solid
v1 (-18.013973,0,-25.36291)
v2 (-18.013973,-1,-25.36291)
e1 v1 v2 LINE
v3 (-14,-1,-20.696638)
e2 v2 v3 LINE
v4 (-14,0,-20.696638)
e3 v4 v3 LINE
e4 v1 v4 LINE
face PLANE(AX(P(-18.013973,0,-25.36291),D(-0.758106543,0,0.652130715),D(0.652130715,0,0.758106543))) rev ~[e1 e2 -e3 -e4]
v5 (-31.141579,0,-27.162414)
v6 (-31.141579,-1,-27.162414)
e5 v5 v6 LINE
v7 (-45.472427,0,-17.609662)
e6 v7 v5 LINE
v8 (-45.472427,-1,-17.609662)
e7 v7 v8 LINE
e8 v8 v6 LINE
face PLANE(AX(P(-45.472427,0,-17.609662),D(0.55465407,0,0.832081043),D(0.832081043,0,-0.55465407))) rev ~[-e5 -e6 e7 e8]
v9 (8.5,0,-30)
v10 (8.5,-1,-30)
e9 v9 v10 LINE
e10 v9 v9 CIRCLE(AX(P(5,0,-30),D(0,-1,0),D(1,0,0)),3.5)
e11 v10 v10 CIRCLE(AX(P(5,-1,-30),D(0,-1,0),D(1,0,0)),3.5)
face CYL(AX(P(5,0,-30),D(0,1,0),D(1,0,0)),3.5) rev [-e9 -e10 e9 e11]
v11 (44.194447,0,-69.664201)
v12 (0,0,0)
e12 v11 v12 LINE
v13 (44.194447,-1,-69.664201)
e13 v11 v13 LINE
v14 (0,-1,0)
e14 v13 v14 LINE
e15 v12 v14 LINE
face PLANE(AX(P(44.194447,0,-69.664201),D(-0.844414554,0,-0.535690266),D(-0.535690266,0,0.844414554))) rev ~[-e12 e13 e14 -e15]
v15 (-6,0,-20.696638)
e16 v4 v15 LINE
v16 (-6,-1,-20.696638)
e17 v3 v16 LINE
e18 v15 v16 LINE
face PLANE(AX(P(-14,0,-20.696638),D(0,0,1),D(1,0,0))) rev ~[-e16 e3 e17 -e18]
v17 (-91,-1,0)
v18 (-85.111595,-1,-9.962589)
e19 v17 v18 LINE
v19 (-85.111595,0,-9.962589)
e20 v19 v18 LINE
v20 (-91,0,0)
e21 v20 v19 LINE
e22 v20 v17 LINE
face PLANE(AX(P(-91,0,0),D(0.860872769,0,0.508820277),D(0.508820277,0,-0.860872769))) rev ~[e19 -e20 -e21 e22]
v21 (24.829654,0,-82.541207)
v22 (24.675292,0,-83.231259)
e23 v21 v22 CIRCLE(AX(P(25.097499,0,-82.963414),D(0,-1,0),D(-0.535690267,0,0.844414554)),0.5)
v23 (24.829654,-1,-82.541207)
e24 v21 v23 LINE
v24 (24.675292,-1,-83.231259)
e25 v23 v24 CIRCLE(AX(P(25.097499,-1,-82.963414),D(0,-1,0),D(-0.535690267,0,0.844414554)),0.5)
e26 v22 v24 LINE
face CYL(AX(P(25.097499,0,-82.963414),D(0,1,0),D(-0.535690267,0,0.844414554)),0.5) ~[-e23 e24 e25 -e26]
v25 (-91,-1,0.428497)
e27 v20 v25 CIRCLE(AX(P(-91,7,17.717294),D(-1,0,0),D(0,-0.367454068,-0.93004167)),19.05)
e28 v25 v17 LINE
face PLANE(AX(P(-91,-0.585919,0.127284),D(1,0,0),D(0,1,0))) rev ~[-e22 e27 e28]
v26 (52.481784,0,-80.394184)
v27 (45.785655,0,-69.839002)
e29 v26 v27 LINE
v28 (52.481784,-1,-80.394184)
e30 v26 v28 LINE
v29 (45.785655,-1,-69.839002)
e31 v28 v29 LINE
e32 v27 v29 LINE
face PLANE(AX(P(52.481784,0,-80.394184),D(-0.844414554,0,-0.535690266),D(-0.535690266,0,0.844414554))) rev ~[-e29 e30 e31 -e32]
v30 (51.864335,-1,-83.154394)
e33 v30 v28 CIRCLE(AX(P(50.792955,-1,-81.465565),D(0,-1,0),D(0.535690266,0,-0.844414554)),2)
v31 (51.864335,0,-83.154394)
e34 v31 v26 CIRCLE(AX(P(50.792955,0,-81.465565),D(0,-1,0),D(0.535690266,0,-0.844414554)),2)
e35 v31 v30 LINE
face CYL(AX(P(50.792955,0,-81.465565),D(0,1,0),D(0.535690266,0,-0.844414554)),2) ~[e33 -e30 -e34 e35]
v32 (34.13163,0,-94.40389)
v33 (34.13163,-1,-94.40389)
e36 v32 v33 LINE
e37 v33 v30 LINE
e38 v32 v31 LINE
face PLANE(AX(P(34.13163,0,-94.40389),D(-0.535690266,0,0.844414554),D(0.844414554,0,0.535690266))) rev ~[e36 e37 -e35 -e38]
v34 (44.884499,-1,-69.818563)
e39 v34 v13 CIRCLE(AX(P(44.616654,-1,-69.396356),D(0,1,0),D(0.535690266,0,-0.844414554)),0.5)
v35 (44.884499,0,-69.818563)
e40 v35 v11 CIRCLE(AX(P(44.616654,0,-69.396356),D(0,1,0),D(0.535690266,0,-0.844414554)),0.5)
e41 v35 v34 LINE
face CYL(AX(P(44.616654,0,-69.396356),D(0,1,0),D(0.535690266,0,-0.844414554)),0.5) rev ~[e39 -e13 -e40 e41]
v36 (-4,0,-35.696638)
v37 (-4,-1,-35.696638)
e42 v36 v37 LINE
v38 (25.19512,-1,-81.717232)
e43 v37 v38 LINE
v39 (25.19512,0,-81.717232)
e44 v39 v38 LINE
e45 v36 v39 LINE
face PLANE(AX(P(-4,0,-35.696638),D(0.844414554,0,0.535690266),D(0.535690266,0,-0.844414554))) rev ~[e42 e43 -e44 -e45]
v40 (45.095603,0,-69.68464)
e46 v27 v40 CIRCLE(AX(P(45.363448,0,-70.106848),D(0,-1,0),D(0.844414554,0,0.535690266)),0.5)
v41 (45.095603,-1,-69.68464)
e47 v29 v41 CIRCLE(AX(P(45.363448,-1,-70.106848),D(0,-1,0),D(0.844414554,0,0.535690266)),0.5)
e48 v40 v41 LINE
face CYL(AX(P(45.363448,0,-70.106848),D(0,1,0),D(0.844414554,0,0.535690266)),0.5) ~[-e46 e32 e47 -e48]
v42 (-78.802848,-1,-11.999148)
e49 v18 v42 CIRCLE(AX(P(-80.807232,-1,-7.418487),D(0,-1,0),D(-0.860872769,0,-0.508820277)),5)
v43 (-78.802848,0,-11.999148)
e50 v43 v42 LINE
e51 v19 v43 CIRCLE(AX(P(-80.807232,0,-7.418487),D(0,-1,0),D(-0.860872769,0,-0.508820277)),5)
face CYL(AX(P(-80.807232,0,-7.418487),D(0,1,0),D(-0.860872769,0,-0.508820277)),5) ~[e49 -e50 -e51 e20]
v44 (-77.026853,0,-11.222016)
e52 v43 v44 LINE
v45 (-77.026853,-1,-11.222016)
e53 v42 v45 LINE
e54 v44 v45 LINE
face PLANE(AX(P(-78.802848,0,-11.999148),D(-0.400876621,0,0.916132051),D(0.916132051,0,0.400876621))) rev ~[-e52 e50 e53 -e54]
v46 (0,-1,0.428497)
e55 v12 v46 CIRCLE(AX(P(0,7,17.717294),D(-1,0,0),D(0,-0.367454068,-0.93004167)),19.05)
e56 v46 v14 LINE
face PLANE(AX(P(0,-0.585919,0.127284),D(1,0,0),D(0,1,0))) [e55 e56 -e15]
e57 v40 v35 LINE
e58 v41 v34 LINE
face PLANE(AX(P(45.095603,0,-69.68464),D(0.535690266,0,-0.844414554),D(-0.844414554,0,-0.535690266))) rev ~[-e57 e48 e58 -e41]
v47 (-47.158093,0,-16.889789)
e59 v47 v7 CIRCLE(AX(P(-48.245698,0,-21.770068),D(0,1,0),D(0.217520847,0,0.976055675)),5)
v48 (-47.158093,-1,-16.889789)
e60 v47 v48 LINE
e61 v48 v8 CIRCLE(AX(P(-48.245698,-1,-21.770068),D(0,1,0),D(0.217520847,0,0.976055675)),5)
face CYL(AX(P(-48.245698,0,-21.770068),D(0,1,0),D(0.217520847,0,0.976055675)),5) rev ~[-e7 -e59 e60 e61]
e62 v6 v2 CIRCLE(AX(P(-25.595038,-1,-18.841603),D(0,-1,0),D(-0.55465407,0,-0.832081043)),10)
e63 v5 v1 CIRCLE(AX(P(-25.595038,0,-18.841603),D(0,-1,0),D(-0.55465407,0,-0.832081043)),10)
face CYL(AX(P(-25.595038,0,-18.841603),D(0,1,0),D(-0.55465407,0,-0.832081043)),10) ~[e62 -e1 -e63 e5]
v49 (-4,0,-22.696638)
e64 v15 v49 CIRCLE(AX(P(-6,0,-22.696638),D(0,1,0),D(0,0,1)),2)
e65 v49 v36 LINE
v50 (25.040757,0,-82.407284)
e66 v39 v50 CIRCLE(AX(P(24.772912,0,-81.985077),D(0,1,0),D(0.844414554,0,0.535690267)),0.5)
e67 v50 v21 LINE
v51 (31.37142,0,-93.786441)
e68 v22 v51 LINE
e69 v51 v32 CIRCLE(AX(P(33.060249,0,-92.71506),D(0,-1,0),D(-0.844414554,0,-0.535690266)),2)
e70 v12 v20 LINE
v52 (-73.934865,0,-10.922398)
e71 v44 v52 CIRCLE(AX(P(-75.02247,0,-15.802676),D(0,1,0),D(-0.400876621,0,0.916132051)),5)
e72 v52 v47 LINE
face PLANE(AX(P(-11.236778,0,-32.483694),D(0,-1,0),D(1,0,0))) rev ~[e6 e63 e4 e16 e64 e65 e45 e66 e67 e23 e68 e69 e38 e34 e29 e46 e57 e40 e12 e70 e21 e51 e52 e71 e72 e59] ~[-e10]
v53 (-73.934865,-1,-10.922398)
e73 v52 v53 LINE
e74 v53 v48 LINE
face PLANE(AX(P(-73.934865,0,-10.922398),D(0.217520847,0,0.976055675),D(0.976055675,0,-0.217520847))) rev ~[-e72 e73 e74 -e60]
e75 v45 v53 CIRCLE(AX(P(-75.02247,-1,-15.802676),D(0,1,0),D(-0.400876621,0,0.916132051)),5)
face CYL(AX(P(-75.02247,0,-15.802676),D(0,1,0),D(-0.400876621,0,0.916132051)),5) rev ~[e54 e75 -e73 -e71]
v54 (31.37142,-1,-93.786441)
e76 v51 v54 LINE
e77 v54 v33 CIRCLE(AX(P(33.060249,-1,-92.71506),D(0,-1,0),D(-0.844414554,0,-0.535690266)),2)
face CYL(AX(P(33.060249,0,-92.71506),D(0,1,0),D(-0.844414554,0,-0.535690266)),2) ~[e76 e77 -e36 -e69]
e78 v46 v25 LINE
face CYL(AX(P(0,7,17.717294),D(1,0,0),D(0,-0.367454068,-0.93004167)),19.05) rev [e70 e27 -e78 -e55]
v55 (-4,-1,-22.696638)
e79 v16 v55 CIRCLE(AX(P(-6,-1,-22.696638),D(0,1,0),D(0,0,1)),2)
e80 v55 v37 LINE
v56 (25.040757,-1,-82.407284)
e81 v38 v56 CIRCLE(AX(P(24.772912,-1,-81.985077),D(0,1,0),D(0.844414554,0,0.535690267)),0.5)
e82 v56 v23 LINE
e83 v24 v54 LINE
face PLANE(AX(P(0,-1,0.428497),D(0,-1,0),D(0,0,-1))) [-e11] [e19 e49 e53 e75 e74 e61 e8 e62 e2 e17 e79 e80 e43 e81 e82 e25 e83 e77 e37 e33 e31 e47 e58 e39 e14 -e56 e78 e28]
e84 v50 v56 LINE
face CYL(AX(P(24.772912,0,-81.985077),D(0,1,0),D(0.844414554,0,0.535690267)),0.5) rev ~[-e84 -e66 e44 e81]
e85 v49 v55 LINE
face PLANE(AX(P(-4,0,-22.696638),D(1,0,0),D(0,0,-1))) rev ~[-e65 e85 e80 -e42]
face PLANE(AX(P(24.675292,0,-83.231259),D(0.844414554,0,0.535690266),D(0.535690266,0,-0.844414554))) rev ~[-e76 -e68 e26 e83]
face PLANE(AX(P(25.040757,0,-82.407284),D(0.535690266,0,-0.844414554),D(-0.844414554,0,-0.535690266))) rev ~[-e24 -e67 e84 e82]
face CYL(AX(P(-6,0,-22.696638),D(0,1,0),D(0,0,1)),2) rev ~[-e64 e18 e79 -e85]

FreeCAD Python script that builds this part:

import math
import FreeCAD as App
import Part
import Sketcher

doc = App.newDocument("Part")
body = doc.addObject("PartDesign::Body", "Body")

# Sketch on XZ plane
sketch1 = doc.addObject("Sketcher::SketchObject", "Sketch")
body.addObject(sketch1)
sketch1.AttachmentSupport = (doc.XZ_Plane, [""])
sketch1.MapMode = "FlatFace"
sketch1.addGeometry([
    Part.LineSegment(App.Vector(44.19, -69.66, 0), App.Vector(0, 0, 0)),  # 0
    Part.LineSegment(App.Vector(0, 0, 0), App.Vector(-91, 0, 0)),  # 1
    Part.LineSegment(App.Vector(-91, 0, 0), App.Vector(-85.11, -9.96, 0)),  # 2
    Part.ArcOfCircle(Part.Circle(App.Vector(-80.81, -7.42, 0), App.Vector(0, 0, 1), 5), math.radians(-149), math.radians(-66)),  # 3
    Part.LineSegment(App.Vector(-78.8, -12, 0), App.Vector(-77.03, -11.22, 0)),  # 4
    Part.ArcOfCircle(Part.Circle(App.Vector(-75.02, -15.8, 0), App.Vector(0, 0, 1), 5), math.radians(77), math.radians(114)),  # 5
    Part.LineSegment(App.Vector(-73.93, -10.92, 0), App.Vector(-47.16, -16.89, 0)),  # 6
    Part.ArcOfCircle(Part.Circle(App.Vector(-48.25, -21.77, 0), App.Vector(0, 0, 1), 5), math.radians(56), math.radians(77)),  # 7
    Part.LineSegment(App.Vector(-45.47, -17.61, 0), App.Vector(-31.14, -27.16, 0)),  # 8
    Part.ArcOfCircle(Part.Circle(App.Vector(-25.6, -18.84, 0), App.Vector(0, 0, 1), 10), math.radians(-124), math.radians(-41)),  # 9
    Part.LineSegment(App.Vector(-18.01, -25.36, 0), App.Vector(-14, -20.7, 0)),  # 10
    Part.LineSegment(App.Vector(-14, -20.7, 0), App.Vector(-6, -20.7, 0)),  # 11
    Part.ArcOfCircle(Part.Circle(App.Vector(-6, -22.7, 0), App.Vector(0, 0, 1), 2), math.radians(0), math.radians(90)),  # 12
    Part.LineSegment(App.Vector(-4, -22.7, 0), App.Vector(-4, -35.7, 0)),  # 13
    Part.LineSegment(App.Vector(-4, -35.7, 0), App.Vector(25.2, -81.72, 0)),  # 14
    Part.ArcOfCircle(Part.Circle(App.Vector(24.77, -81.99, 0), App.Vector(0, 0, 1), 0.5), math.radians(-58), math.radians(32)),  # 15
    Part.LineSegment(App.Vector(25.04, -82.41, 0), App.Vector(24.83, -82.54, 0)),  # 16
    Part.ArcOfCircle(Part.Circle(App.Vector(25.1, -82.96, 0), App.Vector(0, 0, 1), 0.5), math.radians(122), math.radians(212)),  # 17
    Part.LineSegment(App.Vector(24.68, -83.23, 0), App.Vector(31.37, -93.79, 0)),  # 18
    Part.ArcOfCircle(Part.Circle(App.Vector(33.06, -92.72, 0), App.Vector(0, 0, 1), 2), math.radians(-148), math.radians(-58)),  # 19
    Part.LineSegment(App.Vector(34.13, -94.4, 0), App.Vector(51.86, -83.15, 0)),  # 20
    Part.ArcOfCircle(Part.Circle(App.Vector(50.79, -81.47, 0), App.Vector(0, 0, 1), 2), math.radians(-58), math.radians(32)),  # 21
    Part.LineSegment(App.Vector(52.48, -80.39, 0), App.Vector(45.79, -69.84, 0)),  # 22
    Part.ArcOfCircle(Part.Circle(App.Vector(45.36, -70.11, 0), App.Vector(0, 0, 1), 0.5), math.radians(32), math.radians(122)),  # 23
    Part.LineSegment(App.Vector(45.1, -69.68, 0), App.Vector(44.88, -69.82, 0)),  # 24
    Part.ArcOfCircle(Part.Circle(App.Vector(44.62, -69.4, 0), App.Vector(0, 0, 1), 0.5), math.radians(-148), math.radians(-58)),  # 25
    Part.Circle(App.Vector(5, -30, 0), App.Vector(0, 0, 1), 3.5),  # 26
], False)
sketch1.addConstraint([
    Sketcher.Constraint("Coincident", 0, 2, 1, 1),
    Sketcher.Constraint("Coincident", 1, 2, 2, 1),
    Sketcher.Constraint("Tangent", 2, 2, 3, 1),
    Sketcher.Constraint("Tangent", 3, 2, 4, 1),
    Sketcher.Constraint("Tangent", 4, 2, 5, 2),
    Sketcher.Constraint("Tangent", 5, 1, 6, 1),
    Sketcher.Constraint("Tangent", 6, 2, 7, 2),
    Sketcher.Constraint("Tangent", 7, 1, 8, 1),
    Sketcher.Constraint("Tangent", 8, 2, 9, 1),
    Sketcher.Constraint("Tangent", 9, 2, 10, 1),
    Sketcher.Constraint("Coincident", 10, 2, 11, 1),
    Sketcher.Constraint("Tangent", 11, 2, 12, 2),
    Sketcher.Constraint("Tangent", 12, 1, 13, 1),
    Sketcher.Constraint("Coincident", 13, 2, 14, 1),
    Sketcher.Constraint("Tangent", 14, 2, 15, 2),
    Sketcher.Constraint("Tangent", 15, 1, 16, 1),
    Sketcher.Constraint("Tangent", 16, 2, 17, 1),
    Sketcher.Constraint("Tangent", 17, 2, 18, 1),
    Sketcher.Constraint("Tangent", 18, 2, 19, 1),
    Sketcher.Constraint("Tangent", 19, 2, 20, 1),
    Sketcher.Constraint("Tangent", 20, 2, 21, 1),
    Sketcher.Constraint("Tangent", 21, 2, 22, 1),
    Sketcher.Constraint("Tangent", 22, 2, 23, 1),
    Sketcher.Constraint("Tangent", 23, 2, 24, 1),
    Sketcher.Constraint("Tangent", 24, 2, 25, 2),
    Sketcher.Constraint("Tangent", 25, 1, 0, 1),
    Sketcher.Constraint("Horizontal", 1),
    Sketcher.Constraint("Horizontal", 11),
    Sketcher.Constraint("Vertical", 13),
    Sketcher.Constraint("Coincident", 0, 2, -1, 1),
    Sketcher.Constraint("Equal", 3, 5),
    Sketcher.Constraint("Equal", 5, 7),
    Sketcher.Constraint("Equal", 15, 17),
    Sketcher.Constraint("Equal", 12, 19),
    Sketcher.Constraint("Equal", 19, 21),
    Sketcher.Constraint("Equal", 17, 23),
    Sketcher.Constraint("Equal", 23, 25),
    Sketcher.Constraint("Parallel", 0, 14),
    Sketcher.Constraint("Perpendicular", 14, 16),
    Sketcher.Constraint("Perpendicular", 16, 18),
    Sketcher.Constraint("Perpendicular", 18, 20),
    Sketcher.Constraint("Perpendicular", 20, 22),
    Sketcher.Constraint("Perpendicular", 22, 24),
    Sketcher.Constraint("Equal", 18, 22),
    Sketcher.Constraint("Equal", 16, 24),
    Sketcher.Constraint("Diameter", 26, 7.0),
    Sketcher.Constraint("Radius", 3, 5.0),
    Sketcher.Constraint("Radius", 9, 10.0),
    Sketcher.Constraint("Radius", 12, 2.0),
    Sketcher.Constraint("Radius", 15, 0.5),
    Sketcher.Constraint("DistanceX", 1, 2, 1, 1, 91.0),
    Sketcher.Constraint("DistanceX", 11, 1, 11, 2, 8.0),
    Sketcher.Constraint("DistanceY", 13, 2, 13, 1, 13.0),
    Sketcher.Constraint("Distance", 20, 21.0),
    Sketcher.Constraint("DistanceX", 12, 3, -1, 1, 6.0),
    Sketcher.Constraint("DistanceX", -1, 1, 26, 3, 5.0),
    Sketcher.Constraint("DistanceY", 26, 3, -1, 1, 30.0),
    Sketcher.Constraint("Distance", 0, 82.5),
    Sketcher.Constraint("Distance", 14, 54.5),
    Sketcher.Constraint("Distance", 18, 12.5),
    Sketcher.Constraint("Distance", 16, 0.25),
    Sketcher.Constraint("Distance", 8, 17.222899),
    Sketcher.Constraint("DistanceY", 15, 3, 5, 3, 66.1824),
    Sketcher.Constraint("DistanceY", 2, 2, 3, 3, 2.544101),
    Sketcher.Constraint("Distance", 2, 11.572661),
    Sketcher.Constraint("Distance", 4, 1.93858),
    Sketcher.Constraint("DistanceX", 9, 3, -1, 1, 25.595038),
    Sketcher.Constraint("DistanceY", 6, 2, -1, 1, 16.889789),
    Sketcher.Constraint("DistanceX", 8, 2, -1, 1, 31.141579),
])
pad1 = doc.addObject("PartDesign::Pad", "Pad")
body.addObject(pad1)
pad1.Profile = sketch1
pad1.Length = 1

# Sketch on YZ plane
sketch2 = doc.addObject("Sketcher::SketchObject", "Sketch001")
body.addObject(sketch2)
sketch2.AttachmentSupport = (doc.YZ_Plane, [""])
sketch2.MapMode = "FlatFace"
sketch2.addGeometry([
    Part.ArcOfCircle(Part.Circle(App.Vector(7, 17.72, 0), App.Vector(0, 0, 1), 19.05), math.radians(-114.83), math.radians(-111.56)),
    Part.LineSegment(App.Vector(-1, 0.43, 0), App.Vector(-1, 0, 0)),
    Part.LineSegment(App.Vector(-1, 0, 0), App.Vector(0, 0, 0)),
], False)
sketch2.addConstraint([
    Sketcher.Constraint("Coincident", 0, 1, 1, 1),
    Sketcher.Constraint("Coincident", 1, 2, 2, 1),
    Sketcher.Constraint("Coincident", 2, 2, 0, 2),
    Sketcher.Constraint("Vertical", 1),
    Sketcher.Constraint("Horizontal", 2),
    Sketcher.Constraint("Coincident", 2, 2, -1, 1),
    Sketcher.Constraint("DistanceX", 2, 1, 2, 2, 1.0),
    Sketcher.Constraint("Radius", 0, 19.05),
    Sketcher.Constraint("DistanceX", -1, 1, 0, 3, 7.0),
])
pad2 = doc.addObject("PartDesign::Pad", "Pad001")
body.addObject(pad2)
pad2.Profile = sketch2
pad2.Length = 91
pad2.Reversed = True

doc.recompute()
